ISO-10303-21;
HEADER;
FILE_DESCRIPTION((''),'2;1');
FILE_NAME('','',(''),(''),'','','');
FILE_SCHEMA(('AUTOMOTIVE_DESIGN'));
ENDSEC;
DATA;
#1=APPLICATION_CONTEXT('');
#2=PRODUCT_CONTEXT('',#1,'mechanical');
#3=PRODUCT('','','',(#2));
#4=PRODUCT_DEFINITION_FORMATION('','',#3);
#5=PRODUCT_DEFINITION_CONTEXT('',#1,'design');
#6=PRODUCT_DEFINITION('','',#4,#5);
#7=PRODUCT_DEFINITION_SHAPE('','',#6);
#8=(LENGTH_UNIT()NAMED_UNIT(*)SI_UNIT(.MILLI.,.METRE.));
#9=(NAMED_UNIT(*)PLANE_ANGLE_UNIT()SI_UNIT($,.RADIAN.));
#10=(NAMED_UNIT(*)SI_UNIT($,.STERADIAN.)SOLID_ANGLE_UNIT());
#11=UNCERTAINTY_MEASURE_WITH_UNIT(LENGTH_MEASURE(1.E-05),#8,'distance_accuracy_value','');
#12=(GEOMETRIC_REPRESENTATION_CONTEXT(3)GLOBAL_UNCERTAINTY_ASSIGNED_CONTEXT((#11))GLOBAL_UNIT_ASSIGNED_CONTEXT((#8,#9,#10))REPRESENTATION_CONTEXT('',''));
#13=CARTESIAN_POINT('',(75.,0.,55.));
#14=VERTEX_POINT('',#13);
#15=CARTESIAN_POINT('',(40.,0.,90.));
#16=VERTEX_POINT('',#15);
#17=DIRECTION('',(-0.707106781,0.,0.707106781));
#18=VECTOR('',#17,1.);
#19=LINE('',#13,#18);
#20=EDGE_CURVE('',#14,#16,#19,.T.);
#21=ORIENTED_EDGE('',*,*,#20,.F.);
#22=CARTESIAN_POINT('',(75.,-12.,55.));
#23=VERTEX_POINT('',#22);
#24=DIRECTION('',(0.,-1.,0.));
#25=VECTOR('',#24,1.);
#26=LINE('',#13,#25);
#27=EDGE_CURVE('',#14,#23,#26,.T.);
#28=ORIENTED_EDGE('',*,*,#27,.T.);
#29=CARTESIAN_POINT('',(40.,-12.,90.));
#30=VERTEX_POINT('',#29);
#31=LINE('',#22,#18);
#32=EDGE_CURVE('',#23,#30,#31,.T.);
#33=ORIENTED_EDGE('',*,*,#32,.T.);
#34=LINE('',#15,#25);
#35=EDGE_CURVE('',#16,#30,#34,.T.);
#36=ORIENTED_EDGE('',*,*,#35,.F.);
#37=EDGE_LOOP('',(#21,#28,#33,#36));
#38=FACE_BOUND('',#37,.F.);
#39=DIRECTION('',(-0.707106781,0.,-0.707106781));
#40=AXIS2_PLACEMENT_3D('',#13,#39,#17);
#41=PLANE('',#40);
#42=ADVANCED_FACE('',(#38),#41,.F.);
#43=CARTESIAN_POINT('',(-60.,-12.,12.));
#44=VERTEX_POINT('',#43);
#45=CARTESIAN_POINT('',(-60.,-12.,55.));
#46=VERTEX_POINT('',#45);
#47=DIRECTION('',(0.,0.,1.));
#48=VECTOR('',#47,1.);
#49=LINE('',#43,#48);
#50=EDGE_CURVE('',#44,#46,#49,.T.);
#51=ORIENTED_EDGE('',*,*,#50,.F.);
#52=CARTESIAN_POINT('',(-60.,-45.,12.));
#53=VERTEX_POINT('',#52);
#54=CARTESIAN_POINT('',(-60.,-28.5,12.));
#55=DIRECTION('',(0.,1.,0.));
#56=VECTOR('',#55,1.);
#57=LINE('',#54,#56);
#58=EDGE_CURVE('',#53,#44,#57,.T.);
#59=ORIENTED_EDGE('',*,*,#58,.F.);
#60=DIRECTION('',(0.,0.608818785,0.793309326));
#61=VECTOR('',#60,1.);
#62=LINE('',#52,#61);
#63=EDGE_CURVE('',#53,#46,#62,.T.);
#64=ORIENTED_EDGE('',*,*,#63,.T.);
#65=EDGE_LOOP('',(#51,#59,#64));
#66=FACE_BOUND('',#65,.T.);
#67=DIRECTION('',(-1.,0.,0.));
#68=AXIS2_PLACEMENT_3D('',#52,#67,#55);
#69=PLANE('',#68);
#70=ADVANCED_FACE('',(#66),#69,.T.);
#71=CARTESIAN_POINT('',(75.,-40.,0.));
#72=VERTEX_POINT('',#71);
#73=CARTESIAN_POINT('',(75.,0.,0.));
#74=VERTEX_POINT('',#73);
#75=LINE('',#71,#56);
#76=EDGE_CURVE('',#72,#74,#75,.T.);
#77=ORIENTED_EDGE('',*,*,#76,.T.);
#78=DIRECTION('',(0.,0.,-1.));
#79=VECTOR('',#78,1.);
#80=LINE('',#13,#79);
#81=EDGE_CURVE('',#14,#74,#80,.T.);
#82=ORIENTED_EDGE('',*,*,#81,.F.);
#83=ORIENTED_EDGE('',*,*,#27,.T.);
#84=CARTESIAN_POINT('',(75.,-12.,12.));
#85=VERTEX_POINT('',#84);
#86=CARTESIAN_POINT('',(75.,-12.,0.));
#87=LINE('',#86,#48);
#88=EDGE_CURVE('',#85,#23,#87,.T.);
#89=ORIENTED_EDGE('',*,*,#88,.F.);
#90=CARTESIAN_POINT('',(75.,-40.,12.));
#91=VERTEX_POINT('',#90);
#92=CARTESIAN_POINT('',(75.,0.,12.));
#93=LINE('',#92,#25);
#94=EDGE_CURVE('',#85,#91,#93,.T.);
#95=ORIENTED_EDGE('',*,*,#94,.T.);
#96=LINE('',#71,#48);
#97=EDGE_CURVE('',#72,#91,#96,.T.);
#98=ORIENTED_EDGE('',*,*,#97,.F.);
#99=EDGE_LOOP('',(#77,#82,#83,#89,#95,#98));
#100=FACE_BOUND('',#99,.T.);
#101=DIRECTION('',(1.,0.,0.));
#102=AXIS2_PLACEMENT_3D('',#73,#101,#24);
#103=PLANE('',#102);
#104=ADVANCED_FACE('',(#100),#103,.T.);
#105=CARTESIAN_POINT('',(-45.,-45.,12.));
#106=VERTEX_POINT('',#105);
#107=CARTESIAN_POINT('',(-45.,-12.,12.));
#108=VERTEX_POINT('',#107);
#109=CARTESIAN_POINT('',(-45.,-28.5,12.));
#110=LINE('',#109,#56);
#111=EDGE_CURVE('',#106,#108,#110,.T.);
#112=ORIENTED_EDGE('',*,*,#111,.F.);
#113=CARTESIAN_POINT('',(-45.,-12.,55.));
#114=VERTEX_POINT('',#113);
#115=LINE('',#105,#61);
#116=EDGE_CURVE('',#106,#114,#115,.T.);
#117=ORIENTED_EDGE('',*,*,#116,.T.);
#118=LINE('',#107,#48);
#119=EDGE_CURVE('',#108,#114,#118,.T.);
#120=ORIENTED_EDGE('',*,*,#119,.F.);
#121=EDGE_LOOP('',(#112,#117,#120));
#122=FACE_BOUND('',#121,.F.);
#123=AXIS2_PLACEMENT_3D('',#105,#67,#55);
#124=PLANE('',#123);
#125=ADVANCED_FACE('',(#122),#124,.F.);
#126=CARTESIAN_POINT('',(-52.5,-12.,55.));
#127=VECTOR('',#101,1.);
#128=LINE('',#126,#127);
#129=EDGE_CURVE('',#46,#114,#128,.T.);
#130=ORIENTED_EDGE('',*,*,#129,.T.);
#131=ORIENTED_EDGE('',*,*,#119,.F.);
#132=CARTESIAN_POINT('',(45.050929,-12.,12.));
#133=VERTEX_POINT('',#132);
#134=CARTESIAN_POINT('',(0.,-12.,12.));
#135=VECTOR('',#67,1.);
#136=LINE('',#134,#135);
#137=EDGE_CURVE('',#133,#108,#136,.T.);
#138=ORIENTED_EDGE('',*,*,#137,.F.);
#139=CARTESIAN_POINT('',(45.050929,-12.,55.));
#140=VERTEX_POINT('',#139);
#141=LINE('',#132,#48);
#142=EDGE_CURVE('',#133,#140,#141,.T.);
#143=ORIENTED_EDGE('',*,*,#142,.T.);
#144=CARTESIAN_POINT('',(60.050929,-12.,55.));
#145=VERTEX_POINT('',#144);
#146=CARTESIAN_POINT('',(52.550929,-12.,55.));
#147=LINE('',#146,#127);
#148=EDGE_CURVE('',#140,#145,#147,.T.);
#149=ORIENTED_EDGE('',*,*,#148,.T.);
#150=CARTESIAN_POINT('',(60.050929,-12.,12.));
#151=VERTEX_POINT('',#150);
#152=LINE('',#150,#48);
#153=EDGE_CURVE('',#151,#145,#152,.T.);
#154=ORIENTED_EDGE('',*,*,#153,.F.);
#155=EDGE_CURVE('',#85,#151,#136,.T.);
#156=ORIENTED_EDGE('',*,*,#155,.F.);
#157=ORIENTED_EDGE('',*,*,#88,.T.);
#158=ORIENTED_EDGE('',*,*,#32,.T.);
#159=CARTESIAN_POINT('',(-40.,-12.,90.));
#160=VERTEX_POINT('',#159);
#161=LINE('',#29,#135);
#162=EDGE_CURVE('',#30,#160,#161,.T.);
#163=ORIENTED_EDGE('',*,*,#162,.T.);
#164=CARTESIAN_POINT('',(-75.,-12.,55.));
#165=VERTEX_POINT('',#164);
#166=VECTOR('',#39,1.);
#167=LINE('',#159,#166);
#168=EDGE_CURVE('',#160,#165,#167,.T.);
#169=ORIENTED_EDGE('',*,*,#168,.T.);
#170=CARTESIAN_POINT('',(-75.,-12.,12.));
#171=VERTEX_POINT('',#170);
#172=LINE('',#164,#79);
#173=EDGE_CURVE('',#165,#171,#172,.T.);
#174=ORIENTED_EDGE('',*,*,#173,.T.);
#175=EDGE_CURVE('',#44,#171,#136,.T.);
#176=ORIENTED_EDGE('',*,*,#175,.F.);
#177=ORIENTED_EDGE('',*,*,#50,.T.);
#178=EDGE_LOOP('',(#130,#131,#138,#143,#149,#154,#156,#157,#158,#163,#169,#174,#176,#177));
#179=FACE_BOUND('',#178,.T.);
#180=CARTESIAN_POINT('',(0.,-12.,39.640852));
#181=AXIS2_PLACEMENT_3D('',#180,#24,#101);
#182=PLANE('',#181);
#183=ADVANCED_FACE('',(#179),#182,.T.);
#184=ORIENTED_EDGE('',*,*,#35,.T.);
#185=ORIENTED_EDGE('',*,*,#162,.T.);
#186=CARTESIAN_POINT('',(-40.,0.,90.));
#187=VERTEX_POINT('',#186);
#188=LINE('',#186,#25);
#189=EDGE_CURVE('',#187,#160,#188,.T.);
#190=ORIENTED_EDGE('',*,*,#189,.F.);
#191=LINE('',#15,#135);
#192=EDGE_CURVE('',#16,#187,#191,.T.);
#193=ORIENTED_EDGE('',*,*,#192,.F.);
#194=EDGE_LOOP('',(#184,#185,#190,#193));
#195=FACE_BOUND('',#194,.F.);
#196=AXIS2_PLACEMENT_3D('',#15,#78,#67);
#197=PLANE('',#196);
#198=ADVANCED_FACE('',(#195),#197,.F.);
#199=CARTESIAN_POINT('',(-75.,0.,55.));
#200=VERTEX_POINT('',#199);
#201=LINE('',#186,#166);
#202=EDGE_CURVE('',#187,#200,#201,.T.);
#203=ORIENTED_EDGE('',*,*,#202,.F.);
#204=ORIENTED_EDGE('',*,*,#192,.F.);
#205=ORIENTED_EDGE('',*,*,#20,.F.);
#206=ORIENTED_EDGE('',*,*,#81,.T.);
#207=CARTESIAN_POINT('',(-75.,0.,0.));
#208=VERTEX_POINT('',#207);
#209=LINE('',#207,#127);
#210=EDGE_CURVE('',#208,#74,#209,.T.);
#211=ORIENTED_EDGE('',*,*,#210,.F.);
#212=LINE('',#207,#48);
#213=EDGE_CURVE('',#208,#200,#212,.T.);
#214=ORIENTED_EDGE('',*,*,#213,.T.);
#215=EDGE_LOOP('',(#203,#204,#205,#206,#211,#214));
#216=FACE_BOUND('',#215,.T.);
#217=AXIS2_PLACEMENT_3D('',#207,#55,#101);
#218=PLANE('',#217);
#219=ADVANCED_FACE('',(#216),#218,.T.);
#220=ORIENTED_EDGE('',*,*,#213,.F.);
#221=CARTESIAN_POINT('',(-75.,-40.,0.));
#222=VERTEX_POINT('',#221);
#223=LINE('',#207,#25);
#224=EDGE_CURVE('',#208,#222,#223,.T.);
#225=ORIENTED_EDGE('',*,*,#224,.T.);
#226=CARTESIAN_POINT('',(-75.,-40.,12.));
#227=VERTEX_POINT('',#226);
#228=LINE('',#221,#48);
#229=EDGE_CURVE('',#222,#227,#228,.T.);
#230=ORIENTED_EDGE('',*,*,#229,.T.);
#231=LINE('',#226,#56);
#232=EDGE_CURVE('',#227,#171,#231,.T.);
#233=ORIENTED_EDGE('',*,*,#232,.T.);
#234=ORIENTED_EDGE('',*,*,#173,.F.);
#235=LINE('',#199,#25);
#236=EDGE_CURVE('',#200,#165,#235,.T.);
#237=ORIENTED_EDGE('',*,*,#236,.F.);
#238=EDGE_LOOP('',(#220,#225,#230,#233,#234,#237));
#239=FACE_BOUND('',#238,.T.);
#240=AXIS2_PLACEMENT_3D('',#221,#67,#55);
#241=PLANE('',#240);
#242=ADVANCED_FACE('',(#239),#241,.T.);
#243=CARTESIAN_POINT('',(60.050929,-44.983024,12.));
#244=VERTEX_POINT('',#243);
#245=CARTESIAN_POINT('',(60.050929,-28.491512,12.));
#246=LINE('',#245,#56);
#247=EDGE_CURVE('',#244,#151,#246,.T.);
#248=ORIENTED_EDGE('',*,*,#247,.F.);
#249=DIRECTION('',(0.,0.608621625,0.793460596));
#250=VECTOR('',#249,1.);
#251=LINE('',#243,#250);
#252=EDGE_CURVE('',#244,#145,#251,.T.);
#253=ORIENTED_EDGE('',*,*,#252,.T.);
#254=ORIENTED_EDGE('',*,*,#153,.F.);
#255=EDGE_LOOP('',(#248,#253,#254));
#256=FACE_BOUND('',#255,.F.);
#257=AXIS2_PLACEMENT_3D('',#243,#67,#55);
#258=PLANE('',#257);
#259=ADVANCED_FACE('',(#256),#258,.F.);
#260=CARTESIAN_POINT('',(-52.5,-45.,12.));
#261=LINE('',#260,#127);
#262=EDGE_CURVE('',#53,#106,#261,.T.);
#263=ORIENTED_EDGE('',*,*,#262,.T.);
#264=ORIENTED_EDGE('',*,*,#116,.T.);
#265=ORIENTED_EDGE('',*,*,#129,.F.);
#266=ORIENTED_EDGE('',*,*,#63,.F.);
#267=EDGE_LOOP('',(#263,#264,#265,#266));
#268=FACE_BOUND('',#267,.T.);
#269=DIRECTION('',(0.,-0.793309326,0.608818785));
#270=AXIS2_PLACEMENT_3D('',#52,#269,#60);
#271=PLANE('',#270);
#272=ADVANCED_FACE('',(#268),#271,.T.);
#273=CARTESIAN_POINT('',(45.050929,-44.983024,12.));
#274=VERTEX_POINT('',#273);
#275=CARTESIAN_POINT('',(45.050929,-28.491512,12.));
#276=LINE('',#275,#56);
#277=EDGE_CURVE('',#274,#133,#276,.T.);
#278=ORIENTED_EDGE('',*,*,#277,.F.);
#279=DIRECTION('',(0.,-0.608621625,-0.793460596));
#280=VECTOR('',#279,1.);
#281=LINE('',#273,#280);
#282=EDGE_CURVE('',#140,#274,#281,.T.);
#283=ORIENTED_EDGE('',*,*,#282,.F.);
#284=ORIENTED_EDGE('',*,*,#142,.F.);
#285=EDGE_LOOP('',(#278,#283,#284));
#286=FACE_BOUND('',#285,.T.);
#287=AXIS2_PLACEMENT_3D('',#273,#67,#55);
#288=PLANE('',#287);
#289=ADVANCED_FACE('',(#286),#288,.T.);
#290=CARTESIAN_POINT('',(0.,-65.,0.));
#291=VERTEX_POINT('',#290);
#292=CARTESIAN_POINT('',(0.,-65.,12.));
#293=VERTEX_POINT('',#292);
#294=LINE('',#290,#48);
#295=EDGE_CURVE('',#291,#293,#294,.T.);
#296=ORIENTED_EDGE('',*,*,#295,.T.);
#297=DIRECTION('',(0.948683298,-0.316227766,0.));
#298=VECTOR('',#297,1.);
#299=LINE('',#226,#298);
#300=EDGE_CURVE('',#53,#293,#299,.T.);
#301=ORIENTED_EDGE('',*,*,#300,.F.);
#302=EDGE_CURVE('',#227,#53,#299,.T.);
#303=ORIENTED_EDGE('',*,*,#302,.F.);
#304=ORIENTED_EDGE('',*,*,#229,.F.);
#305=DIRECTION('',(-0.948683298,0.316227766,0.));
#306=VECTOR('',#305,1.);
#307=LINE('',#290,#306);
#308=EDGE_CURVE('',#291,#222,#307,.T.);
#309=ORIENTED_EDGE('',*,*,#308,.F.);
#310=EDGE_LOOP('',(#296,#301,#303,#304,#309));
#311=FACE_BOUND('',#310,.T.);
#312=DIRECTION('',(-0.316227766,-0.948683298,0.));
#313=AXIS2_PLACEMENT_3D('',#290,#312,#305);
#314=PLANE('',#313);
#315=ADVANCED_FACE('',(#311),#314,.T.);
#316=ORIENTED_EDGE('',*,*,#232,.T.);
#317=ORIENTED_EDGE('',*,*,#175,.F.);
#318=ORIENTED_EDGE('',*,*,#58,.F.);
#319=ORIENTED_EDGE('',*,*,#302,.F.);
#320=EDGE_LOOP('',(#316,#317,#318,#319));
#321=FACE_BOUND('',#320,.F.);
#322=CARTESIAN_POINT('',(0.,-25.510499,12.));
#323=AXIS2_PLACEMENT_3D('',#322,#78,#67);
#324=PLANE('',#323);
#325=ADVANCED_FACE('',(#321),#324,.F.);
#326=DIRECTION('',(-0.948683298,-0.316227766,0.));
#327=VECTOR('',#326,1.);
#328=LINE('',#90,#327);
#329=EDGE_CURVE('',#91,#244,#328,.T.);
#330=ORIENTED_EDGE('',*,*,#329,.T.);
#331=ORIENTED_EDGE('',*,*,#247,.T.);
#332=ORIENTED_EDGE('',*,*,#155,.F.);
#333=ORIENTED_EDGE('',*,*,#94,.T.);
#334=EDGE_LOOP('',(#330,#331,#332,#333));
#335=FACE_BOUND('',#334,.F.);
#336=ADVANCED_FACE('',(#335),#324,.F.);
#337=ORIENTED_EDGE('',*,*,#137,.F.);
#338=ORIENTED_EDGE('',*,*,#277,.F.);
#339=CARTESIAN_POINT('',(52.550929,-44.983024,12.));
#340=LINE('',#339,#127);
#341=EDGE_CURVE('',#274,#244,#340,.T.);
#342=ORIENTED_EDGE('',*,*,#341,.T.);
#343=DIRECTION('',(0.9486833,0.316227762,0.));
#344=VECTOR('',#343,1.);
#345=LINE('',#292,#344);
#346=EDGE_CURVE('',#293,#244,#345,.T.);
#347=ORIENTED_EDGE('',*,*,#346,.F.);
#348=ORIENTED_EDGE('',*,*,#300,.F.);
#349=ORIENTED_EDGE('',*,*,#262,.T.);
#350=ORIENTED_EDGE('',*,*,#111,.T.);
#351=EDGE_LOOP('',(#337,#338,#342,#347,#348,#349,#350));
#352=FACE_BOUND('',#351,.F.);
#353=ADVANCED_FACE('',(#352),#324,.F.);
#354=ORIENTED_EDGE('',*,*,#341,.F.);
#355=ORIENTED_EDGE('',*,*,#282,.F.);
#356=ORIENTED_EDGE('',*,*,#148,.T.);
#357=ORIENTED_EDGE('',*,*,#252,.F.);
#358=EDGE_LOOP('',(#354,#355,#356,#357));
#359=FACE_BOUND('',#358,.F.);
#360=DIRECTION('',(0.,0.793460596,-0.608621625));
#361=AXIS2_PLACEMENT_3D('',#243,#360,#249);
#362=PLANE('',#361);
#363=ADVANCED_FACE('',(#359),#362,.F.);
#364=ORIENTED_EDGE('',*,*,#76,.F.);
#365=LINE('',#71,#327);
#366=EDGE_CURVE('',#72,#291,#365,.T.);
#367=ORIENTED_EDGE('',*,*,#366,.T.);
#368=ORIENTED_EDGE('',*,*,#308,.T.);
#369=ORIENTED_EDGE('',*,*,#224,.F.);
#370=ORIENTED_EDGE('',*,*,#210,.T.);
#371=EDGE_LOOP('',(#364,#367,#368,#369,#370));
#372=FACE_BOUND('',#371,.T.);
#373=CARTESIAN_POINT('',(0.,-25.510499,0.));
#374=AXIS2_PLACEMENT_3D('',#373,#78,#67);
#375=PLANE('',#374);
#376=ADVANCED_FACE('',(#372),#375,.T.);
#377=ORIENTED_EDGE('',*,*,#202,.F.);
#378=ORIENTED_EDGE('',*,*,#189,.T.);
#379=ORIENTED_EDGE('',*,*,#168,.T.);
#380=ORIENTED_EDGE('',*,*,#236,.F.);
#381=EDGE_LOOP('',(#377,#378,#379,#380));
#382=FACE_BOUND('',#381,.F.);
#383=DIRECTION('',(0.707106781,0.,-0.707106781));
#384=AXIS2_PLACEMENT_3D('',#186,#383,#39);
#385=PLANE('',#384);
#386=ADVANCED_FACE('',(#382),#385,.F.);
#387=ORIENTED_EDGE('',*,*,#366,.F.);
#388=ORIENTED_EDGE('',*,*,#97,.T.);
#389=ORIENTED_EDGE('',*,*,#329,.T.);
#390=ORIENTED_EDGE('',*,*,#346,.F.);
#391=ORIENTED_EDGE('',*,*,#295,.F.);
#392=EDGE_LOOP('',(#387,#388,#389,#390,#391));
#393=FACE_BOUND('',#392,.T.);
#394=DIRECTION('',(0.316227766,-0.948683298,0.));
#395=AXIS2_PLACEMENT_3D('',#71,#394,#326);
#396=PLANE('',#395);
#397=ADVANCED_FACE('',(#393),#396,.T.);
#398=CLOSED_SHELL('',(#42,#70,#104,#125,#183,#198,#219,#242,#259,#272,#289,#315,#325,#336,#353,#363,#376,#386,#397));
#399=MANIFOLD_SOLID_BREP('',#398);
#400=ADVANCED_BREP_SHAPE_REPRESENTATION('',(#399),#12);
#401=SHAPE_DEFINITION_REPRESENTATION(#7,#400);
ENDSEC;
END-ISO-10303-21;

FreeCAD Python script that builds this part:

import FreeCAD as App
import Part
import Sketcher

V = App.Vector
Q = App.Units.Quantity

doc = App.newDocument("Part")
body = doc.addObject("PartDesign::Body", "Body")

# Sketch on XY plane
sketch1 = body.newObject("Sketcher::SketchObject", "Sketch")
sketch1.AttachmentSupport = (doc.getObject("XY_Plane"), [""])
sketch1.MapMode = "FlatFace"
sketch1.addGeometry([
    Part.LineSegment(V(75, 0, 0), V(-75, 0, 0)),  # 0
    Part.LineSegment(V(-75, 0, 0), V(-75, -40, 0)),  # 1
    Part.LineSegment(V(-75, -40, 0), V(0, -65, 0)),  # 2
    Part.LineSegment(V(0, -65, 0), V(75, -40, 0)),  # 3
    Part.LineSegment(V(75, -40, 0), V(75, 0, 0)),  # 4
], False)
sketch1.addConstraint([
    Sketcher.Constraint("Coincident", 0, 2, 1, 1),
    Sketcher.Constraint("Coincident", 1, 2, 2, 1),
    Sketcher.Constraint("Coincident", 2, 2, 3, 1),
    Sketcher.Constraint("Coincident", 3, 2, 4, 1),
    Sketcher.Constraint("Coincident", 4, 2, 0, 1),
    Sketcher.Constraint("Horizontal", 0),
    Sketcher.Constraint("Vertical", 1),
    Sketcher.Constraint("Vertical", 4),
    Sketcher.Constraint("Symmetric", 0, 2, 4, 2, -1, 1),
    Sketcher.Constraint("PointOnObject", 2, 2, -2),
    Sketcher.Constraint("Horizontal", 1, 2, 3, 2),
    Sketcher.Constraint("DistanceX", 0, 2, 0, 1, Q("150 mm")),
    Sketcher.Constraint("DistanceY", 1, 2, 1, 1, Q("40 mm")),
    Sketcher.Constraint("DistanceY", 2, 2, -1, 1, Q("65 mm")),
])
pad1 = body.newObject("PartDesign::Pad", "Pad")
pad1.Profile = sketch1
pad1.Length = 12

# Sketch on XZ plane
sketch2 = body.newObject("Sketcher::SketchObject", "Sketch001")
sketch2.AttachmentSupport = (doc.getObject("XZ_Plane"), [""])
sketch2.MapMode = "FlatFace"
sketch2.addGeometry([
    Part.LineSegment(V(75, 0, 0), V(-75, 0, 0)),  # 0
    Part.LineSegment(V(-75, 0, 0), V(-75, 55, 0)),  # 1
    Part.LineSegment(V(-75, 55, 0), V(-40, 90, 0)),  # 2
    Part.LineSegment(V(-40, 90, 0), V(40, 90, 0)),  # 3
    Part.LineSegment(V(40, 90, 0), V(75, 55, 0)),  # 4
    Part.LineSegment(V(75, 55, 0), V(75, 0, 0)),  # 5
], False)
sketch2.addConstraint([
    Sketcher.Constraint("Coincident", 0, 2, 1, 1),
    Sketcher.Constraint("Coincident", 1, 2, 2, 1),
    Sketcher.Constraint("Coincident", 2, 2, 3, 1),
    Sketcher.Constraint("Coincident", 3, 2, 4, 1),
    Sketcher.Constraint("Coincident", 4, 2, 5, 1),
    Sketcher.Constraint("Coincident", 5, 2, 0, 1),
    Sketcher.Constraint("Horizontal", 0),
    Sketcher.Constraint("Vertical", 1),
    Sketcher.Constraint("Horizontal", 3),
    Sketcher.Constraint("Vertical", 5),
    Sketcher.Constraint("Symmetric", 0, 2, 5, 2, -1, 1),
    Sketcher.Constraint("Perpendicular", 2, 4),
    Sketcher.Constraint("Horizontal", 1, 2, 4, 2),
    Sketcher.Constraint("Equal", 2, 4),
    Sketcher.Constraint("DistanceX", 0, 2, 0, 1, Q("150 mm")),
    Sketcher.Constraint("DistanceX", 3, 1, 3, 2, Q("80 mm")),
    Sketcher.Constraint("DistanceY", 1, 1, 1, 2, Q("55 mm")),
])
pad2 = body.newObject("PartDesign::Pad", "Pad001")
pad2.Profile = sketch2
pad2.Length = 12

# Sketch on XY plane
sketch3 = body.newObject("Sketcher::SketchObject", "Sketch002")
sketch3.AttachmentSupport = (doc.getObject("XY_Plane"), [""])
sketch3.MapMode = "FlatFace"
sketch3.AttachmentOffset = App.Placement(V(0, 0, 12), App.Rotation())
sketch3.addGeometry([
    Part.LineSegment(V(45.050929, -12, 0), V(45.050929, -44.983024, 0)),
    Part.LineSegment(V(45.050929, -44.983024, 0), V(60.050929, -44.983024, 0)),
    Part.LineSegment(V(60.050929, -44.983024, 0), V(60.050929, -12, 0)),
    Part.LineSegment(V(60.050929, -12, 0), V(45.050929, -12, 0)),
], False)
sketch3.addConstraint([
    Sketcher.Constraint("Coincident", 0, 2, 1, 1),
    Sketcher.Constraint("Coincident", 1, 2, 2, 1),
    Sketcher.Constraint("Coincident", 2, 2, 3, 1),
    Sketcher.Constraint("Coincident", 3, 2, 0, 1),
    Sketcher.Constraint("Vertical", 0),
    Sketcher.Constraint("Horizontal", 1),
    Sketcher.Constraint("Vertical", 2),
    Sketcher.Constraint("Horizontal", 3),
    Sketcher.Constraint("DistanceX", 1, 1, 1, 2, Q("15 mm")),
    Sketcher.Constraint("DistanceY", 2, 2, -1, 1, Q("12 mm")),
    Sketcher.Constraint("DistanceY", 0, 2, 0, 1, Q("32.983024 mm")),
    Sketcher.Constraint("DistanceX", -1, 1, 0, 2, Q("45.050929 mm")),
])
pad3 = body.newObject("PartDesign::Pad", "Pad002")
pad3.Profile = sketch3
pad3.Length = 43

# Sketch on YZ plane
sketch4 = body.newObject("Sketcher::SketchObject", "Sketch003")
sketch4.AttachmentSupport = (doc.getObject("YZ_Plane"), [""])
sketch4.MapMode = "FlatFace"
sketch4.AttachmentOffset = App.Placement(V(0, 0, 60.050929), App.Rotation())
sketch4.addGeometry([
    Part.LineSegment(V(-44.983024, 12, 0), V(-12, 55, 0)),
    Part.LineSegment(V(-12, 55, 0), V(-44.983024, 55, 0)),
    Part.LineSegment(V(-44.983024, 55, 0), V(-44.983024, 12, 0)),
], False)
sketch4.addConstraint([
    Sketcher.Constraint("Coincident", 0, 2, 1, 1),
    Sketcher.Constraint("Coincident", 1, 2, 2, 1),
    Sketcher.Constraint("Coincident", 2, 2, 0, 1),
    Sketcher.Constraint("Horizontal", 1),
    Sketcher.Constraint("Vertical", 2),
    Sketcher.Constraint("DistanceY", 2, 2, 2, 1, Q("43 mm")),
    Sketcher.Constraint("DistanceX", 0, 2, -1, 1, Q("12 mm")),
    Sketcher.Constraint("DistanceY", -1, 1, 0, 2, Q("55 mm")),
    Sketcher.Constraint("DistanceX", 1, 2, 1, 1, Q("32.983024 mm")),
])
pocket1 = body.newObject("PartDesign::Pocket", "Pocket")
pocket1.Profile = sketch4
pocket1.Type = "ThroughAll"

# Sketch on XY plane
sketch5 = body.newObject("Sketcher::SketchObject", "Sketch004")
sketch5.AttachmentSupport = (doc.getObject("XY_Plane"), [""])
sketch5.MapMode = "FlatFace"
sketch5.AttachmentOffset = App.Placement(V(0, 0, 12), App.Rotation())
sketch5.addGeometry([
    Part.LineSegment(V(-60, -12, 0), V(-60, -45, 0)),
    Part.LineSegment(V(-60, -45, 0), V(-45, -45, 0)),
    Part.LineSegment(V(-45, -45, 0), V(-45, -12, 0)),
    Part.LineSegment(V(-45, -12, 0), V(-60, -12, 0)),
], False)
sketch5.addConstraint([
    Sketcher.Constraint("Coincident", 0, 2, 1, 1),
    Sketcher.Constraint("Coincident", 1, 2, 2, 1),
    Sketcher.Constraint("Coincident", 2, 2, 3, 1),
    Sketcher.Constraint("Coincident", 3, 2, 0, 1),
    Sketcher.Constraint("Vertical", 0),
    Sketcher.Constraint("Horizontal", 1),
    Sketcher.Constraint("Vertical", 2),
    Sketcher.Constraint("Horizontal", 3),
    Sketcher.Constraint("DistanceX", 1, 1, 1, 2, Q("15 mm")),
    Sketcher.Constraint("DistanceY", 0, 2, 0, 1, Q("33 mm")),
    Sketcher.Constraint("DistanceX", 0, 2, -1, 1, Q("60 mm")),
    Sketcher.Constraint("DistanceY", 0, 2, -1, 1, Q("45 mm")),
])
pad4 = body.newObject("PartDesign::Pad", "Pad003")
pad4.Profile = sketch5
pad4.Length = 43

# Sketch on YZ plane
sketch6 = body.newObject("Sketcher::SketchObject", "Sketch005")
sketch6.AttachmentSupport = (doc.getObject("YZ_Plane"), [""])
sketch6.MapMode = "FlatFace"
sketch6.AttachmentOffset = App.Placement(V(0, 0, -60), App.Rotation())
sketch6.addGeometry([
    Part.LineSegment(V(-45, 55, 0), V(-12, 55, 0)),
    Part.LineSegment(V(-12, 55, 0), V(-45, 12, 0)),
    Part.LineSegment(V(-45, 12, 0), V(-45, 55, 0)),
], False)
sketch6.addConstraint([
    Sketcher.Constraint("Coincident", 0, 2, 1, 1),
    Sketcher.Constraint("Coincident", 1, 2, 2, 1),
    Sketcher.Constraint("Coincident", 2, 2, 0, 1),
    Sketcher.Constraint("Horizontal", 0),
    Sketcher.Constraint("Vertical", 2),
    Sketcher.Constraint("DistanceX", 0, 1, 0, 2, Q("33 mm")),
    Sketcher.Constraint("DistanceY", 2, 1, 2, 2, Q("43 mm")),
    Sketcher.Constraint("DistanceX", 0, 2, -1, 1, Q("12 mm")),
    Sketcher.Constraint("DistanceY", -1, 1, 0, 2, Q("55 mm")),
])
pocket2 = body.newObject("PartDesign::Pocket", "Pocket001")
pocket2.Profile = sketch6
pocket2.Type = "ThroughAll"
pocket2.Reversed = True

doc.recompute()
